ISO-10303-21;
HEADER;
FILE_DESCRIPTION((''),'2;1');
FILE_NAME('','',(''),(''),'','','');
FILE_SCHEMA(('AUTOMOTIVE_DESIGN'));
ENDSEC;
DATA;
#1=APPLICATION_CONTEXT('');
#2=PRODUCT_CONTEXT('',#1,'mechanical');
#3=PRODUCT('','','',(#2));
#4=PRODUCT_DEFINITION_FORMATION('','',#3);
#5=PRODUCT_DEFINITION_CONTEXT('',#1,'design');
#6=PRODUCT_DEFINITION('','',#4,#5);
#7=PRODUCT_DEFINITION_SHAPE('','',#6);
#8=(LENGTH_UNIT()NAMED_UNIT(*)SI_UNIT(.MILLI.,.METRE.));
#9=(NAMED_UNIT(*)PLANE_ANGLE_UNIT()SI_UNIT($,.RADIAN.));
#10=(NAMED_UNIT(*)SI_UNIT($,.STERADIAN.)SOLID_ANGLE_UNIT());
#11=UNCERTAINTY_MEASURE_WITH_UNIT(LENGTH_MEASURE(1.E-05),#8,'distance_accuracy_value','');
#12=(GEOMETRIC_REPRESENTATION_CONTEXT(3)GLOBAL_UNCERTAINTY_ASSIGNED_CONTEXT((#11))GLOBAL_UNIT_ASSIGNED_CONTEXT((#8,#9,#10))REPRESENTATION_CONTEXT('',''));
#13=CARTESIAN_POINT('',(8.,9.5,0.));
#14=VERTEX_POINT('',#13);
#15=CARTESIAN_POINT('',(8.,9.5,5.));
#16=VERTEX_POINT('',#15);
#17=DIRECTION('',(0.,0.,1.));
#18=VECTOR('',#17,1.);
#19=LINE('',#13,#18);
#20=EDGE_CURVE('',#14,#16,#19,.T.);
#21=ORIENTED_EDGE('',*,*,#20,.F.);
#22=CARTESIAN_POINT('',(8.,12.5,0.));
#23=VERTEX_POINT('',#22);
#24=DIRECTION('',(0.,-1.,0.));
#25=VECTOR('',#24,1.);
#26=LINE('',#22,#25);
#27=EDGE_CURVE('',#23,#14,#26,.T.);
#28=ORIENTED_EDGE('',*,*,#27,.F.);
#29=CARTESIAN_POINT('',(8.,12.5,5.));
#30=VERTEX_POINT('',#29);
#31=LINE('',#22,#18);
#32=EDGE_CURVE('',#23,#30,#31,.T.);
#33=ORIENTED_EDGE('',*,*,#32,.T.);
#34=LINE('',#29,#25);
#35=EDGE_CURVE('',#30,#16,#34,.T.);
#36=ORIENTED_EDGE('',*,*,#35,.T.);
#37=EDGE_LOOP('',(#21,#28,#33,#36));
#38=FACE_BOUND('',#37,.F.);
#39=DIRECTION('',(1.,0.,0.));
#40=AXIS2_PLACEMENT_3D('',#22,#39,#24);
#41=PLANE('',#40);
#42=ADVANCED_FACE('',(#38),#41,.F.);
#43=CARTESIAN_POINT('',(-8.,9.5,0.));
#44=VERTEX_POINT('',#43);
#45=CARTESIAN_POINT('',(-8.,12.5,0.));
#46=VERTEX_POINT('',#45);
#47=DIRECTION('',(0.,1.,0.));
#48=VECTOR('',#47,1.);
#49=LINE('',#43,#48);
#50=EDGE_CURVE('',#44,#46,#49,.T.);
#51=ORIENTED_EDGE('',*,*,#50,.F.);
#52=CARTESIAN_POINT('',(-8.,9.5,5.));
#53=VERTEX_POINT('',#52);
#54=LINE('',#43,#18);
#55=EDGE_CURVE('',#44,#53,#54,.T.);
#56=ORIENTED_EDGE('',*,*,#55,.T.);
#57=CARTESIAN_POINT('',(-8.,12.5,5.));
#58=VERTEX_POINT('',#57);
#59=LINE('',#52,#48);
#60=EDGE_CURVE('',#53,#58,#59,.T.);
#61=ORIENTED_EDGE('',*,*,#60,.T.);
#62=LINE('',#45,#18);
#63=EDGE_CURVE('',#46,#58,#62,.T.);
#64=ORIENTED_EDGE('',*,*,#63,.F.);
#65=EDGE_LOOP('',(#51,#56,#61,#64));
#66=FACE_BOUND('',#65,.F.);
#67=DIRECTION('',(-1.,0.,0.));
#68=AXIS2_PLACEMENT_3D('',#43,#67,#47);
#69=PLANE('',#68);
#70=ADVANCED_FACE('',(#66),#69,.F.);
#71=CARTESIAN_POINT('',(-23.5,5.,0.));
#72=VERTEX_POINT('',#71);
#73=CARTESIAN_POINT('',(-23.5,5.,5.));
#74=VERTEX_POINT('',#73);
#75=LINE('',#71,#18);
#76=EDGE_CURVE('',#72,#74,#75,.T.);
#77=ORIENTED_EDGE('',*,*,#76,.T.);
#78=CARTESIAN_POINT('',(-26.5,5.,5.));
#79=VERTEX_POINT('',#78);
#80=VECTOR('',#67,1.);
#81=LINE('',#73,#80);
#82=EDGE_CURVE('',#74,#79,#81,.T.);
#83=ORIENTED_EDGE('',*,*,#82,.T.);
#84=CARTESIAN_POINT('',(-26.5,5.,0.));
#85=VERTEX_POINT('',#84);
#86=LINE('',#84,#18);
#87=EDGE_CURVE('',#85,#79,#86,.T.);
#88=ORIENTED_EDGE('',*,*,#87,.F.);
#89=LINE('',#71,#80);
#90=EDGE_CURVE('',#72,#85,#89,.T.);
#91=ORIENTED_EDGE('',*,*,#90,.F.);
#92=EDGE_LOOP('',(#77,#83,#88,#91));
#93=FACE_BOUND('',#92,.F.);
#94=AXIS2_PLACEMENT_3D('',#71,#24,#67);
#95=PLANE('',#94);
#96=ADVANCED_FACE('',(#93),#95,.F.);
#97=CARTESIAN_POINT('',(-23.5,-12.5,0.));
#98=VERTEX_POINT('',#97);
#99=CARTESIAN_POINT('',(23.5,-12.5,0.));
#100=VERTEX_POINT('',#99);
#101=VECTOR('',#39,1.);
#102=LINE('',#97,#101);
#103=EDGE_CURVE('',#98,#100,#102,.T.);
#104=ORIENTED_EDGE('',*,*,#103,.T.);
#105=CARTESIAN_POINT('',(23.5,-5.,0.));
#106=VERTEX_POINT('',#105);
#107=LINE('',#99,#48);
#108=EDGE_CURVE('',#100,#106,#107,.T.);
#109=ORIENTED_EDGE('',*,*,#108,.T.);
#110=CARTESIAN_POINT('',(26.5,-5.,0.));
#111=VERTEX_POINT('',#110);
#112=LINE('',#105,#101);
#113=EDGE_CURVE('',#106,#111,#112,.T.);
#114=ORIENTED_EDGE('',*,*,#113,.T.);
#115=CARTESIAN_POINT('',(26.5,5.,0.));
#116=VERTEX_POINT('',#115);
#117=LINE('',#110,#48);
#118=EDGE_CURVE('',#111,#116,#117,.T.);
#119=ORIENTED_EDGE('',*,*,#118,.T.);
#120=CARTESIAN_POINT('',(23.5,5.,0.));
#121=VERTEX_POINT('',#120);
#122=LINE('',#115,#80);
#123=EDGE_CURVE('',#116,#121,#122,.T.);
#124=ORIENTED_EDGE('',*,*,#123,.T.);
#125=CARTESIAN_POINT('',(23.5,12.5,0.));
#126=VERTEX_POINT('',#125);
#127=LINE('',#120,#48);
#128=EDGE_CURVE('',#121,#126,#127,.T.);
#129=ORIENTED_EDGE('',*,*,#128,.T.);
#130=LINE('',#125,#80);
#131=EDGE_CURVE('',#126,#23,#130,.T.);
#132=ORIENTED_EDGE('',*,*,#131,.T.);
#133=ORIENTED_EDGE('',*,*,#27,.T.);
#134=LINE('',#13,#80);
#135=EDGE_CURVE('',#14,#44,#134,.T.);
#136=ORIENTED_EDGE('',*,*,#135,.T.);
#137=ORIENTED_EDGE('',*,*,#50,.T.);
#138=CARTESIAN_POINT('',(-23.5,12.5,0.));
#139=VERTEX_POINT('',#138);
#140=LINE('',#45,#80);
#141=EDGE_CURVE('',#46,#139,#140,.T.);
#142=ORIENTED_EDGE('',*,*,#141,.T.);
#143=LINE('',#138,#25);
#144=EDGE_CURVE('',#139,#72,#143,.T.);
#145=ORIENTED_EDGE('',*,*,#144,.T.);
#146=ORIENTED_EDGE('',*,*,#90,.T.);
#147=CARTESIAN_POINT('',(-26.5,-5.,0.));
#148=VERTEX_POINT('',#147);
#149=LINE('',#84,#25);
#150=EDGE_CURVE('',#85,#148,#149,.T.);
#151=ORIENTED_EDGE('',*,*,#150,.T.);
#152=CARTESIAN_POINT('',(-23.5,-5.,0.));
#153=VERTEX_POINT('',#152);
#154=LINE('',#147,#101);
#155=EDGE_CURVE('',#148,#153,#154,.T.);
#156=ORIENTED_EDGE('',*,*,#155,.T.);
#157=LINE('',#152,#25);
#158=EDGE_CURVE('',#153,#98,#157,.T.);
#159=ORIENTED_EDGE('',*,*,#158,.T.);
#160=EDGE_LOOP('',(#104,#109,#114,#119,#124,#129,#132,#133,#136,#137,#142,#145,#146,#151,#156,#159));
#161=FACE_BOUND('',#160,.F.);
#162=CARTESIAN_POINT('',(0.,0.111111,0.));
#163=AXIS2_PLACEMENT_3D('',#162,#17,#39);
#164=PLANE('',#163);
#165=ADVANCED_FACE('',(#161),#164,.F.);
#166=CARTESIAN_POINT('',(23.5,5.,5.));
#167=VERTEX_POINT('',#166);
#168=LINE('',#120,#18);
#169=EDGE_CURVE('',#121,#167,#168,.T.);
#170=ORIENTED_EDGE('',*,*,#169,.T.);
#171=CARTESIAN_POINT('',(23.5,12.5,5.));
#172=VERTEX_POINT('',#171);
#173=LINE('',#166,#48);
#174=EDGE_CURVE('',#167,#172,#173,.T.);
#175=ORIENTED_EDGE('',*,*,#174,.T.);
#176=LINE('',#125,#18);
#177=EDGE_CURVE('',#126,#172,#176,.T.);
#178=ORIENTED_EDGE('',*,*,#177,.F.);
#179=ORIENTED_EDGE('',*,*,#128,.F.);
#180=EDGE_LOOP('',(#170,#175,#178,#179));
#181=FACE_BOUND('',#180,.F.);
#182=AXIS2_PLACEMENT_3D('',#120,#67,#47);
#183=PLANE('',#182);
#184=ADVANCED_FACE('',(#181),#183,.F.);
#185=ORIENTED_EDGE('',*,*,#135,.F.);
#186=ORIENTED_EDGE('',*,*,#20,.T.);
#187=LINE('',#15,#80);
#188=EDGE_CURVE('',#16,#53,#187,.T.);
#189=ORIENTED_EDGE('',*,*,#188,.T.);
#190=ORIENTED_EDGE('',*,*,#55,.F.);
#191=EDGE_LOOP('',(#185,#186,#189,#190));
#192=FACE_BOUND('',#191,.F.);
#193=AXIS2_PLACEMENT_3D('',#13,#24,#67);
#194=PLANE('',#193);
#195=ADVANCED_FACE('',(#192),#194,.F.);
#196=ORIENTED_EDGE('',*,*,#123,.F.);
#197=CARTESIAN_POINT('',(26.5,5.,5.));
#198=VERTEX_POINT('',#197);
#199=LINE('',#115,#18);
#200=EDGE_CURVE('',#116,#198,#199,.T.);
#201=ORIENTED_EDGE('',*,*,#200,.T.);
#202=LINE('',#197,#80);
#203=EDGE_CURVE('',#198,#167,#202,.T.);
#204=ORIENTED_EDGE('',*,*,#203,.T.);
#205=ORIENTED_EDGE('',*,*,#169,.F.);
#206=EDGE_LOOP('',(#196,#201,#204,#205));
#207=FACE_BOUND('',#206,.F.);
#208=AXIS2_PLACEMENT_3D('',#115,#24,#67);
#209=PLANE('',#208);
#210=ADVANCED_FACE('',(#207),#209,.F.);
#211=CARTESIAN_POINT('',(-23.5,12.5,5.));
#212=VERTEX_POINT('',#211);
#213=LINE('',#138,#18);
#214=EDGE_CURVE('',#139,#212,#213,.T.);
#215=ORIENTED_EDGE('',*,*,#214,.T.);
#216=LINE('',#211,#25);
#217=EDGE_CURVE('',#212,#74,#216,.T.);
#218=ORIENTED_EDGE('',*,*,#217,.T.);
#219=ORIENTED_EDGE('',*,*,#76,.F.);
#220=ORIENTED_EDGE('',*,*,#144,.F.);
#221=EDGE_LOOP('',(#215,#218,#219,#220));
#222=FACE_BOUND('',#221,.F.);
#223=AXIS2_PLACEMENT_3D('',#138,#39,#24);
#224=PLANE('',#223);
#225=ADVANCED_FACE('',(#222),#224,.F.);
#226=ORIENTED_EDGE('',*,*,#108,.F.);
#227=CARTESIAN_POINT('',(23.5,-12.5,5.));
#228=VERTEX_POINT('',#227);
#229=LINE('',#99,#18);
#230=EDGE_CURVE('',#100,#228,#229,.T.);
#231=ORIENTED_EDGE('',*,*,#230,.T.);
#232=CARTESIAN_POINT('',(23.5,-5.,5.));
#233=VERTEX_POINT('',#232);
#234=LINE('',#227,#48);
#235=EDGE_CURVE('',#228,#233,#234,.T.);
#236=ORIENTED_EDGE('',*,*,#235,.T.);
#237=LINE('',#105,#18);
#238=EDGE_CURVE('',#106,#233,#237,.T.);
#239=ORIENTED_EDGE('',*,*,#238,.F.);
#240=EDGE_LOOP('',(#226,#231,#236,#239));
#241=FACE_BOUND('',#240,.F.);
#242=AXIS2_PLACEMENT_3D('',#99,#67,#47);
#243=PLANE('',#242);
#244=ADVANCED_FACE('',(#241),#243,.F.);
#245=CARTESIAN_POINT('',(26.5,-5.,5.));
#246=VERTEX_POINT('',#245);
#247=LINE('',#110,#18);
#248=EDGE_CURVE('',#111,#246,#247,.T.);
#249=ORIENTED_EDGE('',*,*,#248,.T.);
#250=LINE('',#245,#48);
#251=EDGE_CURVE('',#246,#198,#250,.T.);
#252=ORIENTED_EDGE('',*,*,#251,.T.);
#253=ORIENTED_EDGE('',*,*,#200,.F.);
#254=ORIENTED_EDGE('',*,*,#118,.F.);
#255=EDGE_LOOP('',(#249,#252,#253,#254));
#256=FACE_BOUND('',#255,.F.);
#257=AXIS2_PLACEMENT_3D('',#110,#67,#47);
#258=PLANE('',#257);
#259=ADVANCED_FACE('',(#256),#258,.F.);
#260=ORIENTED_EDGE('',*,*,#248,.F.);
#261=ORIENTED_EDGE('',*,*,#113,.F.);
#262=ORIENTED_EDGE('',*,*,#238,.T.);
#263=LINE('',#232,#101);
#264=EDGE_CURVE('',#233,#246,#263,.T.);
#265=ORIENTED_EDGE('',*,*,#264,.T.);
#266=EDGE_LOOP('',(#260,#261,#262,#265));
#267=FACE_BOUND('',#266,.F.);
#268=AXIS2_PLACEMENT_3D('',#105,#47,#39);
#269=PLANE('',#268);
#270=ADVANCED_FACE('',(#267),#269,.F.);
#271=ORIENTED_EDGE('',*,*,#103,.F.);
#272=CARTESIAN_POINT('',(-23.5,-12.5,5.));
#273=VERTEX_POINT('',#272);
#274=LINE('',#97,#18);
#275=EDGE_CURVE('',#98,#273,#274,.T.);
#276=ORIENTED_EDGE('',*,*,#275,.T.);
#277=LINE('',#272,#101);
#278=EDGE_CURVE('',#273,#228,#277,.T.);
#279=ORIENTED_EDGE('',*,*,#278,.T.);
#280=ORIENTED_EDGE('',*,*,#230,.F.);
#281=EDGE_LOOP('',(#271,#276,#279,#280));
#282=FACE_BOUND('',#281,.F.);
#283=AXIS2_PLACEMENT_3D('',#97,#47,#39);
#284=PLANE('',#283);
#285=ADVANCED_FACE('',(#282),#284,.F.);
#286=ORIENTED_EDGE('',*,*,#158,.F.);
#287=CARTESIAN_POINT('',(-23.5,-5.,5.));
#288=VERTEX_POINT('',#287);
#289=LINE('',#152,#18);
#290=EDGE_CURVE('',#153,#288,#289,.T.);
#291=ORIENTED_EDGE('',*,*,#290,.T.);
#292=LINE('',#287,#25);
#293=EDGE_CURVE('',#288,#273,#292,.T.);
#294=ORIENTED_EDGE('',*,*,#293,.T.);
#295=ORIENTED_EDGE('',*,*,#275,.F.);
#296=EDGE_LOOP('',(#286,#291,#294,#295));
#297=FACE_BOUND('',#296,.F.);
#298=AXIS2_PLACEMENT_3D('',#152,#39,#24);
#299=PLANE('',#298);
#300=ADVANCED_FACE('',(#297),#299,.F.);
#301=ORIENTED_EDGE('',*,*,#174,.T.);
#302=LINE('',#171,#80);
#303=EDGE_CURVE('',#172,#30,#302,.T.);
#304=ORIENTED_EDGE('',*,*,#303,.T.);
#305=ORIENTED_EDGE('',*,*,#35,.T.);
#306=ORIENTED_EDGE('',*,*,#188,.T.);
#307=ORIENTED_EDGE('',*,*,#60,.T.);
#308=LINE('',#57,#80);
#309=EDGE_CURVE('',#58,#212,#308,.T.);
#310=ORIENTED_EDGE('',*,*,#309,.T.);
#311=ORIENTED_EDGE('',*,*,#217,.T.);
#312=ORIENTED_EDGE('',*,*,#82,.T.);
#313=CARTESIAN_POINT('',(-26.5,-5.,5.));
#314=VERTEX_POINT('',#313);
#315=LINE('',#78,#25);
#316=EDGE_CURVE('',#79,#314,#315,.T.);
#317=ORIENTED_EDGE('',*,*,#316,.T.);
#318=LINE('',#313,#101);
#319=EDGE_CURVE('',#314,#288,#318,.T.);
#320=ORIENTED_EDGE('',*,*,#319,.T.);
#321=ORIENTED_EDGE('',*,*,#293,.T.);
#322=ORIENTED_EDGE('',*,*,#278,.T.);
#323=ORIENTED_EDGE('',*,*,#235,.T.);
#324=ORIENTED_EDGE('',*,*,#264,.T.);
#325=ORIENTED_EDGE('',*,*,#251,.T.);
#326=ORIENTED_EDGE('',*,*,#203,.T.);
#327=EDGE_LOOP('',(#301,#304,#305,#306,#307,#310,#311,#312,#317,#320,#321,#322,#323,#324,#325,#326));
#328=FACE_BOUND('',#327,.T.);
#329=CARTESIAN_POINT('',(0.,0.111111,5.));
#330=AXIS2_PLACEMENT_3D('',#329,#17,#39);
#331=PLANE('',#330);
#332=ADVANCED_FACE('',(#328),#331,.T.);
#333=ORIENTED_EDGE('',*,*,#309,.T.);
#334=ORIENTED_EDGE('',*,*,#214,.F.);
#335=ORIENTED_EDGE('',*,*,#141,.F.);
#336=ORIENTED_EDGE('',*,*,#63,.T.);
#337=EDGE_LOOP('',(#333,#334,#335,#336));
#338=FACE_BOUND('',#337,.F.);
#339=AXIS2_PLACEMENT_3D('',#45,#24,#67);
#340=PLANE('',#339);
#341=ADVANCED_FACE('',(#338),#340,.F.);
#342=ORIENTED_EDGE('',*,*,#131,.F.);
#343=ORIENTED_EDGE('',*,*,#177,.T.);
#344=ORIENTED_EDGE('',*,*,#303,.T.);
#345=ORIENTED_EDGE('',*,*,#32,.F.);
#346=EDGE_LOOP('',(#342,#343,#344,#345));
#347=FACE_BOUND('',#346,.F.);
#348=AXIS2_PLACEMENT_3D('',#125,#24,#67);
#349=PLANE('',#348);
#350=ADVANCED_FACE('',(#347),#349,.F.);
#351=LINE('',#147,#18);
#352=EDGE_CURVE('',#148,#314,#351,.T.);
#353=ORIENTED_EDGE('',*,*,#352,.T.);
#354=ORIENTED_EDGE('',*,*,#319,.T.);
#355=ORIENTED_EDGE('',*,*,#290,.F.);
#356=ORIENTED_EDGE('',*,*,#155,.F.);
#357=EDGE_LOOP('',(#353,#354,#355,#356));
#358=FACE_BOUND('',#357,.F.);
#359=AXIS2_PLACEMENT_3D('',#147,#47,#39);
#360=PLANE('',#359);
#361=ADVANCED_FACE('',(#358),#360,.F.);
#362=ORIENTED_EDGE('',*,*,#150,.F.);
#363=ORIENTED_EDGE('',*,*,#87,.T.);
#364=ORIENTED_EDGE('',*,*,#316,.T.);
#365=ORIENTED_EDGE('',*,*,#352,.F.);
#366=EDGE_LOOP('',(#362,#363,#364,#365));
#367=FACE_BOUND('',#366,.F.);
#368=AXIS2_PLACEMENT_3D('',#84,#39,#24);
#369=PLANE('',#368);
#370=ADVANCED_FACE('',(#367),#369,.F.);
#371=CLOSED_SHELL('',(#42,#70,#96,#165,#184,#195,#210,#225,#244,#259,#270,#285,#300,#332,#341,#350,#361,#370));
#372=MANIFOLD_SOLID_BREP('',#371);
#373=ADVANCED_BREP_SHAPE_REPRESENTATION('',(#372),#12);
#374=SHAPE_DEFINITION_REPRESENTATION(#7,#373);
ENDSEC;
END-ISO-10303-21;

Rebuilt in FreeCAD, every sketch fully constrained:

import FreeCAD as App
import Part
import Sketcher
Q = App.Units.Quantity

doc = App.newDocument("Part")
body = doc.addObject("PartDesign::Body", "Body")

# Sketch on XY plane
sketch1 = body.newObject("Sketcher::SketchObject", "Sketch")
sketch1.AttachmentSupport = (doc.getObject("XY_Plane"), [""])
sketch1.MapMode = "FlatFace"
sketch1.addGeometry(Part.LineSegment(App.Vector(23.5, 5, 0), App.Vector(23.5, 12.5, 0)), False)
sketch1.addGeometry(Part.LineSegment(App.Vector(23.5, 12.5, 0), App.Vector(8, 12.5, 0)), False)
sketch1.addGeometry(Part.LineSegment(App.Vector(8, 12.5, 0), App.Vector(8, 9.5, 0)), False)
sketch1.addGeometry(Part.LineSegment(App.Vector(8, 9.5, 0), App.Vector(-8, 9.5, 0)), False)
sketch1.addGeometry(Part.LineSegment(App.Vector(-8, 9.5, 0), App.Vector(-8, 12.5, 0)), False)
sketch1.addGeometry(Part.LineSegment(App.Vector(-8, 12.5, 0), App.Vector(-23.5, 12.5, 0)), False)
sketch1.addGeometry(Part.LineSegment(App.Vector(-23.5, 12.5, 0), App.Vector(-23.5, 5, 0)), False)
sketch1.addGeometry(Part.LineSegment(App.Vector(-23.5, 5, 0), App.Vector(-26.5, 5, 0)), False)
sketch1.addGeometry(Part.LineSegment(App.Vector(-26.5, 5, 0), App.Vector(-26.5, -5, 0)), False)
sketch1.addGeometry(Part.LineSegment(App.Vector(-26.5, -5, 0), App.Vector(-23.5, -5, 0)), False)
sketch1.addGeometry(Part.LineSegment(App.Vector(-23.5, -5, 0), App.Vector(-23.5, -12.5, 0)), False)
sketch1.addGeometry(Part.LineSegment(App.Vector(-23.5, -12.5, 0), App.Vector(23.5, -12.5, 0)), False)
sketch1.addGeometry(Part.LineSegment(App.Vector(23.5, -12.5, 0), App.Vector(23.5, -5, 0)), False)
sketch1.addGeometry(Part.LineSegment(App.Vector(23.5, -5, 0), App.Vector(26.5, -5, 0)), False)
sketch1.addGeometry(Part.LineSegment(App.Vector(26.5, -5, 0), App.Vector(26.5, 5, 0)), False)
sketch1.addGeometry(Part.LineSegment(App.Vector(26.5, 5, 0), App.Vector(23.5, 5, 0)), False)
sketch1.addConstraint(Sketcher.Constraint("Coincident", 0, 2, 1, 1))
sketch1.addConstraint(Sketcher.Constraint("Coincident", 1, 2, 2, 1))
sketch1.addConstraint(Sketcher.Constraint("Coincident", 2, 2, 3, 1))
sketch1.addConstraint(Sketcher.Constraint("Coincident", 3, 2, 4, 1))
sketch1.addConstraint(Sketcher.Constraint("Coincident", 4, 2, 5, 1))
sketch1.addConstraint(Sketcher.Constraint("Coincident", 5, 2, 6, 1))
sketch1.addConstraint(Sketcher.Constraint("Coincident", 6, 2, 7, 1))
sketch1.addConstraint(Sketcher.Constraint("Coincident", 7, 2, 8, 1))
sketch1.addConstraint(Sketcher.Constraint("Coincident", 8, 2, 9, 1))
sketch1.addConstraint(Sketcher.Constraint("Coincident", 9, 2, 10, 1))
sketch1.addConstraint(Sketcher.Constraint("Coincident", 10, 2, 11, 1))
sketch1.addConstraint(Sketcher.Constraint("Coincident", 11, 2, 12, 1))
sketch1.addConstraint(Sketcher.Constraint("Coincident", 12, 2, 13, 1))
sketch1.addConstraint(Sketcher.Constraint("Coincident", 13, 2, 14, 1))
sketch1.addConstraint(Sketcher.Constraint("Coincident", 14, 2, 15, 1))
sketch1.addConstraint(Sketcher.Constraint("Coincident", 15, 2, 0, 1))
sketch1.addConstraint(Sketcher.Constraint("Vertical", 0))
sketch1.addConstraint(Sketcher.Constraint("Horizontal", 1))
sketch1.addConstraint(Sketcher.Constraint("Vertical", 2))
sketch1.addConstraint(Sketcher.Constraint("Horizontal", 3))
sketch1.addConstraint(Sketcher.Constraint("Vertical", 4))
sketch1.addConstraint(Sketcher.Constraint("Horizontal", 5))
sketch1.addConstraint(Sketcher.Constraint("Vertical", 6))
sketch1.addConstraint(Sketcher.Constraint("Horizontal", 7))
sketch1.addConstraint(Sketcher.Constraint("Vertical", 8))
sketch1.addConstraint(Sketcher.Constraint("Horizontal", 9))
sketch1.addConstraint(Sketcher.Constraint("Vertical", 10))
sketch1.addConstraint(Sketcher.Constraint("Horizontal", 11))
sketch1.addConstraint(Sketcher.Constraint("Vertical", 12))
sketch1.addConstraint(Sketcher.Constraint("Horizontal", 13))
sketch1.addConstraint(Sketcher.Constraint("Vertical", 14))
sketch1.addConstraint(Sketcher.Constraint("Horizontal", 15))
sketch1.addConstraint(Sketcher.Constraint("Symmetric", 0, 2, 10, 2, -1, 1))
sketch1.addConstraint(Sketcher.Constraint("Symmetric", 5, 2, 11, 2, -1, 1))
sketch1.addConstraint(Sketcher.Constraint("Symmetric", 7, 2, 13, 2, -1, 1))
sketch1.addConstraint(Sketcher.Constraint("Symmetric", 9, 2, 12, 2, -2))
sketch1.addConstraint(Sketcher.Constraint("Horizontal", 7, 2, 14, 2))
sketch1.addConstraint(Sketcher.Constraint("Equal", 1, 5))
sketch1.addConstraint(Sketcher.Constraint("Equal", 15, 2))
sketch1.addConstraint(Sketcher.Constraint("DistanceX", 3, 2, 3, 1, Q("16 mm")))
sketch1.addConstraint(Sketcher.Constraint("DistanceX", 7, 2, 7, 1, Q("3 mm")))
sketch1.addConstraint(Sketcher.Constraint("DistanceX", 11, 1, 11, 2, Q("47 mm")))
sketch1.addConstraint(Sketcher.Constraint("DistanceY", 8, 2, 8, 1, Q("10 mm")))
sketch1.addConstraint(Sketcher.Constraint("DistanceY", 0, 1, 0, 2, Q("7.5 mm")))
pad1 = body.newObject("PartDesign::Pad", "Pad")
pad1.Profile = sketch1
pad1.Length = 5

doc.recompute()
